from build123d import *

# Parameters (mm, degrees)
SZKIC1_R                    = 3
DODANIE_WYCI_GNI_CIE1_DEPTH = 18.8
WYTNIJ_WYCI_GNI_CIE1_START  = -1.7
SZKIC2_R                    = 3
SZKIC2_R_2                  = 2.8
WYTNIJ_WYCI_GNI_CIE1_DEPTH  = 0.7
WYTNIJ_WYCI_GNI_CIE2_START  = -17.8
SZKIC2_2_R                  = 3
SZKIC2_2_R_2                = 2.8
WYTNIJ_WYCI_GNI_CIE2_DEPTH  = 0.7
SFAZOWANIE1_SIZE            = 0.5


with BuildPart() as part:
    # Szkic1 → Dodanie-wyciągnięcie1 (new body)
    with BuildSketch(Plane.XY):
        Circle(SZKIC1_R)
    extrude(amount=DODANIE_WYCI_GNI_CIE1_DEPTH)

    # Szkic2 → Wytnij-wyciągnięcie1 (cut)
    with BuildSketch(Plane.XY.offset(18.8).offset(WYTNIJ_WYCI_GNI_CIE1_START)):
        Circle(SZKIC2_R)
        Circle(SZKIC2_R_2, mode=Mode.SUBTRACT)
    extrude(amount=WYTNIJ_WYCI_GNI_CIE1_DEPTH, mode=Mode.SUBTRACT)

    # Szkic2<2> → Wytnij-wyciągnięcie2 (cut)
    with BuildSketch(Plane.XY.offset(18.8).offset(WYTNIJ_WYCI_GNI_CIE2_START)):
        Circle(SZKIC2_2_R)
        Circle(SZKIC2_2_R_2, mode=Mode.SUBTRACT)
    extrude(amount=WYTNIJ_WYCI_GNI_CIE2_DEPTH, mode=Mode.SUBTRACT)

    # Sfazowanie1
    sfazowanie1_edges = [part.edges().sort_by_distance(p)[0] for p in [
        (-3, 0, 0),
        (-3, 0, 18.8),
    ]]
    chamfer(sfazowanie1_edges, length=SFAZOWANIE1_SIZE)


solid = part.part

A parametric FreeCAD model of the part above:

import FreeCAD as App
import Part
import Sketcher

V = App.Vector


def edges_at(feature, points):
    """Names of the edges that pass closest to the given points."""
    edges = feature.Shape.Edges
    near = lambda p: min(range(len(edges)), key=lambda i: edges[i].distToShape(Part.Vertex(*p))[0])
    return sorted({f"Edge{near(p) + 1}" for p in points})

doc = App.newDocument("Part")
body = doc.addObject("PartDesign::Body", "Body")

sketch1 = body.newObject("Sketcher::SketchObject", "Sketch")
sketch1.AttachmentSupport = (doc.getObject("XY_Plane"), [""])
sketch1.MapMode = "FlatFace"
sketch1.addGeometry(Part.Circle(V(0, 0, 0), V(0, 0, 1), 3), False)
sketch1.addConstraint([
    Sketcher.Constraint("Coincident", 0, 3, -1, 1),
    Sketcher.Constraint("Diameter", 0, 6.0),
])
pad1 = body.newObject("PartDesign::Pad", "Pad")
pad1.Profile = sketch1
pad1.Length = 18.8

sketch2 = body.newObject("Sketcher::SketchObject", "Sketch001")
sketch2.AttachmentSupport = (doc.getObject("XY_Plane"), [""])
sketch2.MapMode = "FlatFace"
sketch2.AttachmentOffset = App.Placement(V(0, 0, 17.1), App.Rotation())
sketch2.addGeometry([
    Part.Circle(V(0, 0, 0), V(0, 0, 1), 3),
    Part.Circle(V(0, 0, 0), V(0, 0, 1), 2.8),
], False)
sketch2.addConstraint([
    Sketcher.Constraint("Coincident", 0, 3, -1, 1),
    Sketcher.Constraint("Coincident", 1, 3, -1, 1),
    Sketcher.Constraint("Diameter", 0, 6.0),
    Sketcher.Constraint("Diameter", 1, 5.6),
])
pocket1 = body.newObject("PartDesign::Pocket", "Pocket")
pocket1.Profile = sketch2
pocket1.Length = 0.7
pocket1.Reversed = True

sketch3 = body.newObject("Sketcher::SketchObject", "Sketch002")
sketch3.AttachmentSupport = (doc.getObject("XY_Plane"), [""])
sketch3.MapMode = "FlatFace"
sketch3.AttachmentOffset = App.Placement(V(0, 0, 1), App.Rotation())
sketch3.addGeometry([
    Part.Circle(V(0, 0, 0), V(0, 0, 1), 3),
    Part.Circle(V(0, 0, 0), V(0, 0, 1), 2.8),
], False)
sketch3.addConstraint([
    Sketcher.Constraint("Coincident", 0, 3, -1, 1),
    Sketcher.Constraint("Coincident", 1, 3, -1, 1),
    Sketcher.Constraint("Diameter", 0, 6.0),
    Sketcher.Constraint("Diameter", 1, 5.6),
])
pocket2 = body.newObject("PartDesign::Pocket", "Pocket001")
pocket2.Profile = sketch3
pocket2.Length = 0.7
pocket2.Reversed = True
doc.recompute()

chamfer = body.newObject("PartDesign::Chamfer", "Chamfer")
chamfer.Base = (pocket2, edges_at(pocket2, [(-3, 0, 0), (-3, 0, 18.8)]))
chamfer.Size = 0.5

doc.recompute()
